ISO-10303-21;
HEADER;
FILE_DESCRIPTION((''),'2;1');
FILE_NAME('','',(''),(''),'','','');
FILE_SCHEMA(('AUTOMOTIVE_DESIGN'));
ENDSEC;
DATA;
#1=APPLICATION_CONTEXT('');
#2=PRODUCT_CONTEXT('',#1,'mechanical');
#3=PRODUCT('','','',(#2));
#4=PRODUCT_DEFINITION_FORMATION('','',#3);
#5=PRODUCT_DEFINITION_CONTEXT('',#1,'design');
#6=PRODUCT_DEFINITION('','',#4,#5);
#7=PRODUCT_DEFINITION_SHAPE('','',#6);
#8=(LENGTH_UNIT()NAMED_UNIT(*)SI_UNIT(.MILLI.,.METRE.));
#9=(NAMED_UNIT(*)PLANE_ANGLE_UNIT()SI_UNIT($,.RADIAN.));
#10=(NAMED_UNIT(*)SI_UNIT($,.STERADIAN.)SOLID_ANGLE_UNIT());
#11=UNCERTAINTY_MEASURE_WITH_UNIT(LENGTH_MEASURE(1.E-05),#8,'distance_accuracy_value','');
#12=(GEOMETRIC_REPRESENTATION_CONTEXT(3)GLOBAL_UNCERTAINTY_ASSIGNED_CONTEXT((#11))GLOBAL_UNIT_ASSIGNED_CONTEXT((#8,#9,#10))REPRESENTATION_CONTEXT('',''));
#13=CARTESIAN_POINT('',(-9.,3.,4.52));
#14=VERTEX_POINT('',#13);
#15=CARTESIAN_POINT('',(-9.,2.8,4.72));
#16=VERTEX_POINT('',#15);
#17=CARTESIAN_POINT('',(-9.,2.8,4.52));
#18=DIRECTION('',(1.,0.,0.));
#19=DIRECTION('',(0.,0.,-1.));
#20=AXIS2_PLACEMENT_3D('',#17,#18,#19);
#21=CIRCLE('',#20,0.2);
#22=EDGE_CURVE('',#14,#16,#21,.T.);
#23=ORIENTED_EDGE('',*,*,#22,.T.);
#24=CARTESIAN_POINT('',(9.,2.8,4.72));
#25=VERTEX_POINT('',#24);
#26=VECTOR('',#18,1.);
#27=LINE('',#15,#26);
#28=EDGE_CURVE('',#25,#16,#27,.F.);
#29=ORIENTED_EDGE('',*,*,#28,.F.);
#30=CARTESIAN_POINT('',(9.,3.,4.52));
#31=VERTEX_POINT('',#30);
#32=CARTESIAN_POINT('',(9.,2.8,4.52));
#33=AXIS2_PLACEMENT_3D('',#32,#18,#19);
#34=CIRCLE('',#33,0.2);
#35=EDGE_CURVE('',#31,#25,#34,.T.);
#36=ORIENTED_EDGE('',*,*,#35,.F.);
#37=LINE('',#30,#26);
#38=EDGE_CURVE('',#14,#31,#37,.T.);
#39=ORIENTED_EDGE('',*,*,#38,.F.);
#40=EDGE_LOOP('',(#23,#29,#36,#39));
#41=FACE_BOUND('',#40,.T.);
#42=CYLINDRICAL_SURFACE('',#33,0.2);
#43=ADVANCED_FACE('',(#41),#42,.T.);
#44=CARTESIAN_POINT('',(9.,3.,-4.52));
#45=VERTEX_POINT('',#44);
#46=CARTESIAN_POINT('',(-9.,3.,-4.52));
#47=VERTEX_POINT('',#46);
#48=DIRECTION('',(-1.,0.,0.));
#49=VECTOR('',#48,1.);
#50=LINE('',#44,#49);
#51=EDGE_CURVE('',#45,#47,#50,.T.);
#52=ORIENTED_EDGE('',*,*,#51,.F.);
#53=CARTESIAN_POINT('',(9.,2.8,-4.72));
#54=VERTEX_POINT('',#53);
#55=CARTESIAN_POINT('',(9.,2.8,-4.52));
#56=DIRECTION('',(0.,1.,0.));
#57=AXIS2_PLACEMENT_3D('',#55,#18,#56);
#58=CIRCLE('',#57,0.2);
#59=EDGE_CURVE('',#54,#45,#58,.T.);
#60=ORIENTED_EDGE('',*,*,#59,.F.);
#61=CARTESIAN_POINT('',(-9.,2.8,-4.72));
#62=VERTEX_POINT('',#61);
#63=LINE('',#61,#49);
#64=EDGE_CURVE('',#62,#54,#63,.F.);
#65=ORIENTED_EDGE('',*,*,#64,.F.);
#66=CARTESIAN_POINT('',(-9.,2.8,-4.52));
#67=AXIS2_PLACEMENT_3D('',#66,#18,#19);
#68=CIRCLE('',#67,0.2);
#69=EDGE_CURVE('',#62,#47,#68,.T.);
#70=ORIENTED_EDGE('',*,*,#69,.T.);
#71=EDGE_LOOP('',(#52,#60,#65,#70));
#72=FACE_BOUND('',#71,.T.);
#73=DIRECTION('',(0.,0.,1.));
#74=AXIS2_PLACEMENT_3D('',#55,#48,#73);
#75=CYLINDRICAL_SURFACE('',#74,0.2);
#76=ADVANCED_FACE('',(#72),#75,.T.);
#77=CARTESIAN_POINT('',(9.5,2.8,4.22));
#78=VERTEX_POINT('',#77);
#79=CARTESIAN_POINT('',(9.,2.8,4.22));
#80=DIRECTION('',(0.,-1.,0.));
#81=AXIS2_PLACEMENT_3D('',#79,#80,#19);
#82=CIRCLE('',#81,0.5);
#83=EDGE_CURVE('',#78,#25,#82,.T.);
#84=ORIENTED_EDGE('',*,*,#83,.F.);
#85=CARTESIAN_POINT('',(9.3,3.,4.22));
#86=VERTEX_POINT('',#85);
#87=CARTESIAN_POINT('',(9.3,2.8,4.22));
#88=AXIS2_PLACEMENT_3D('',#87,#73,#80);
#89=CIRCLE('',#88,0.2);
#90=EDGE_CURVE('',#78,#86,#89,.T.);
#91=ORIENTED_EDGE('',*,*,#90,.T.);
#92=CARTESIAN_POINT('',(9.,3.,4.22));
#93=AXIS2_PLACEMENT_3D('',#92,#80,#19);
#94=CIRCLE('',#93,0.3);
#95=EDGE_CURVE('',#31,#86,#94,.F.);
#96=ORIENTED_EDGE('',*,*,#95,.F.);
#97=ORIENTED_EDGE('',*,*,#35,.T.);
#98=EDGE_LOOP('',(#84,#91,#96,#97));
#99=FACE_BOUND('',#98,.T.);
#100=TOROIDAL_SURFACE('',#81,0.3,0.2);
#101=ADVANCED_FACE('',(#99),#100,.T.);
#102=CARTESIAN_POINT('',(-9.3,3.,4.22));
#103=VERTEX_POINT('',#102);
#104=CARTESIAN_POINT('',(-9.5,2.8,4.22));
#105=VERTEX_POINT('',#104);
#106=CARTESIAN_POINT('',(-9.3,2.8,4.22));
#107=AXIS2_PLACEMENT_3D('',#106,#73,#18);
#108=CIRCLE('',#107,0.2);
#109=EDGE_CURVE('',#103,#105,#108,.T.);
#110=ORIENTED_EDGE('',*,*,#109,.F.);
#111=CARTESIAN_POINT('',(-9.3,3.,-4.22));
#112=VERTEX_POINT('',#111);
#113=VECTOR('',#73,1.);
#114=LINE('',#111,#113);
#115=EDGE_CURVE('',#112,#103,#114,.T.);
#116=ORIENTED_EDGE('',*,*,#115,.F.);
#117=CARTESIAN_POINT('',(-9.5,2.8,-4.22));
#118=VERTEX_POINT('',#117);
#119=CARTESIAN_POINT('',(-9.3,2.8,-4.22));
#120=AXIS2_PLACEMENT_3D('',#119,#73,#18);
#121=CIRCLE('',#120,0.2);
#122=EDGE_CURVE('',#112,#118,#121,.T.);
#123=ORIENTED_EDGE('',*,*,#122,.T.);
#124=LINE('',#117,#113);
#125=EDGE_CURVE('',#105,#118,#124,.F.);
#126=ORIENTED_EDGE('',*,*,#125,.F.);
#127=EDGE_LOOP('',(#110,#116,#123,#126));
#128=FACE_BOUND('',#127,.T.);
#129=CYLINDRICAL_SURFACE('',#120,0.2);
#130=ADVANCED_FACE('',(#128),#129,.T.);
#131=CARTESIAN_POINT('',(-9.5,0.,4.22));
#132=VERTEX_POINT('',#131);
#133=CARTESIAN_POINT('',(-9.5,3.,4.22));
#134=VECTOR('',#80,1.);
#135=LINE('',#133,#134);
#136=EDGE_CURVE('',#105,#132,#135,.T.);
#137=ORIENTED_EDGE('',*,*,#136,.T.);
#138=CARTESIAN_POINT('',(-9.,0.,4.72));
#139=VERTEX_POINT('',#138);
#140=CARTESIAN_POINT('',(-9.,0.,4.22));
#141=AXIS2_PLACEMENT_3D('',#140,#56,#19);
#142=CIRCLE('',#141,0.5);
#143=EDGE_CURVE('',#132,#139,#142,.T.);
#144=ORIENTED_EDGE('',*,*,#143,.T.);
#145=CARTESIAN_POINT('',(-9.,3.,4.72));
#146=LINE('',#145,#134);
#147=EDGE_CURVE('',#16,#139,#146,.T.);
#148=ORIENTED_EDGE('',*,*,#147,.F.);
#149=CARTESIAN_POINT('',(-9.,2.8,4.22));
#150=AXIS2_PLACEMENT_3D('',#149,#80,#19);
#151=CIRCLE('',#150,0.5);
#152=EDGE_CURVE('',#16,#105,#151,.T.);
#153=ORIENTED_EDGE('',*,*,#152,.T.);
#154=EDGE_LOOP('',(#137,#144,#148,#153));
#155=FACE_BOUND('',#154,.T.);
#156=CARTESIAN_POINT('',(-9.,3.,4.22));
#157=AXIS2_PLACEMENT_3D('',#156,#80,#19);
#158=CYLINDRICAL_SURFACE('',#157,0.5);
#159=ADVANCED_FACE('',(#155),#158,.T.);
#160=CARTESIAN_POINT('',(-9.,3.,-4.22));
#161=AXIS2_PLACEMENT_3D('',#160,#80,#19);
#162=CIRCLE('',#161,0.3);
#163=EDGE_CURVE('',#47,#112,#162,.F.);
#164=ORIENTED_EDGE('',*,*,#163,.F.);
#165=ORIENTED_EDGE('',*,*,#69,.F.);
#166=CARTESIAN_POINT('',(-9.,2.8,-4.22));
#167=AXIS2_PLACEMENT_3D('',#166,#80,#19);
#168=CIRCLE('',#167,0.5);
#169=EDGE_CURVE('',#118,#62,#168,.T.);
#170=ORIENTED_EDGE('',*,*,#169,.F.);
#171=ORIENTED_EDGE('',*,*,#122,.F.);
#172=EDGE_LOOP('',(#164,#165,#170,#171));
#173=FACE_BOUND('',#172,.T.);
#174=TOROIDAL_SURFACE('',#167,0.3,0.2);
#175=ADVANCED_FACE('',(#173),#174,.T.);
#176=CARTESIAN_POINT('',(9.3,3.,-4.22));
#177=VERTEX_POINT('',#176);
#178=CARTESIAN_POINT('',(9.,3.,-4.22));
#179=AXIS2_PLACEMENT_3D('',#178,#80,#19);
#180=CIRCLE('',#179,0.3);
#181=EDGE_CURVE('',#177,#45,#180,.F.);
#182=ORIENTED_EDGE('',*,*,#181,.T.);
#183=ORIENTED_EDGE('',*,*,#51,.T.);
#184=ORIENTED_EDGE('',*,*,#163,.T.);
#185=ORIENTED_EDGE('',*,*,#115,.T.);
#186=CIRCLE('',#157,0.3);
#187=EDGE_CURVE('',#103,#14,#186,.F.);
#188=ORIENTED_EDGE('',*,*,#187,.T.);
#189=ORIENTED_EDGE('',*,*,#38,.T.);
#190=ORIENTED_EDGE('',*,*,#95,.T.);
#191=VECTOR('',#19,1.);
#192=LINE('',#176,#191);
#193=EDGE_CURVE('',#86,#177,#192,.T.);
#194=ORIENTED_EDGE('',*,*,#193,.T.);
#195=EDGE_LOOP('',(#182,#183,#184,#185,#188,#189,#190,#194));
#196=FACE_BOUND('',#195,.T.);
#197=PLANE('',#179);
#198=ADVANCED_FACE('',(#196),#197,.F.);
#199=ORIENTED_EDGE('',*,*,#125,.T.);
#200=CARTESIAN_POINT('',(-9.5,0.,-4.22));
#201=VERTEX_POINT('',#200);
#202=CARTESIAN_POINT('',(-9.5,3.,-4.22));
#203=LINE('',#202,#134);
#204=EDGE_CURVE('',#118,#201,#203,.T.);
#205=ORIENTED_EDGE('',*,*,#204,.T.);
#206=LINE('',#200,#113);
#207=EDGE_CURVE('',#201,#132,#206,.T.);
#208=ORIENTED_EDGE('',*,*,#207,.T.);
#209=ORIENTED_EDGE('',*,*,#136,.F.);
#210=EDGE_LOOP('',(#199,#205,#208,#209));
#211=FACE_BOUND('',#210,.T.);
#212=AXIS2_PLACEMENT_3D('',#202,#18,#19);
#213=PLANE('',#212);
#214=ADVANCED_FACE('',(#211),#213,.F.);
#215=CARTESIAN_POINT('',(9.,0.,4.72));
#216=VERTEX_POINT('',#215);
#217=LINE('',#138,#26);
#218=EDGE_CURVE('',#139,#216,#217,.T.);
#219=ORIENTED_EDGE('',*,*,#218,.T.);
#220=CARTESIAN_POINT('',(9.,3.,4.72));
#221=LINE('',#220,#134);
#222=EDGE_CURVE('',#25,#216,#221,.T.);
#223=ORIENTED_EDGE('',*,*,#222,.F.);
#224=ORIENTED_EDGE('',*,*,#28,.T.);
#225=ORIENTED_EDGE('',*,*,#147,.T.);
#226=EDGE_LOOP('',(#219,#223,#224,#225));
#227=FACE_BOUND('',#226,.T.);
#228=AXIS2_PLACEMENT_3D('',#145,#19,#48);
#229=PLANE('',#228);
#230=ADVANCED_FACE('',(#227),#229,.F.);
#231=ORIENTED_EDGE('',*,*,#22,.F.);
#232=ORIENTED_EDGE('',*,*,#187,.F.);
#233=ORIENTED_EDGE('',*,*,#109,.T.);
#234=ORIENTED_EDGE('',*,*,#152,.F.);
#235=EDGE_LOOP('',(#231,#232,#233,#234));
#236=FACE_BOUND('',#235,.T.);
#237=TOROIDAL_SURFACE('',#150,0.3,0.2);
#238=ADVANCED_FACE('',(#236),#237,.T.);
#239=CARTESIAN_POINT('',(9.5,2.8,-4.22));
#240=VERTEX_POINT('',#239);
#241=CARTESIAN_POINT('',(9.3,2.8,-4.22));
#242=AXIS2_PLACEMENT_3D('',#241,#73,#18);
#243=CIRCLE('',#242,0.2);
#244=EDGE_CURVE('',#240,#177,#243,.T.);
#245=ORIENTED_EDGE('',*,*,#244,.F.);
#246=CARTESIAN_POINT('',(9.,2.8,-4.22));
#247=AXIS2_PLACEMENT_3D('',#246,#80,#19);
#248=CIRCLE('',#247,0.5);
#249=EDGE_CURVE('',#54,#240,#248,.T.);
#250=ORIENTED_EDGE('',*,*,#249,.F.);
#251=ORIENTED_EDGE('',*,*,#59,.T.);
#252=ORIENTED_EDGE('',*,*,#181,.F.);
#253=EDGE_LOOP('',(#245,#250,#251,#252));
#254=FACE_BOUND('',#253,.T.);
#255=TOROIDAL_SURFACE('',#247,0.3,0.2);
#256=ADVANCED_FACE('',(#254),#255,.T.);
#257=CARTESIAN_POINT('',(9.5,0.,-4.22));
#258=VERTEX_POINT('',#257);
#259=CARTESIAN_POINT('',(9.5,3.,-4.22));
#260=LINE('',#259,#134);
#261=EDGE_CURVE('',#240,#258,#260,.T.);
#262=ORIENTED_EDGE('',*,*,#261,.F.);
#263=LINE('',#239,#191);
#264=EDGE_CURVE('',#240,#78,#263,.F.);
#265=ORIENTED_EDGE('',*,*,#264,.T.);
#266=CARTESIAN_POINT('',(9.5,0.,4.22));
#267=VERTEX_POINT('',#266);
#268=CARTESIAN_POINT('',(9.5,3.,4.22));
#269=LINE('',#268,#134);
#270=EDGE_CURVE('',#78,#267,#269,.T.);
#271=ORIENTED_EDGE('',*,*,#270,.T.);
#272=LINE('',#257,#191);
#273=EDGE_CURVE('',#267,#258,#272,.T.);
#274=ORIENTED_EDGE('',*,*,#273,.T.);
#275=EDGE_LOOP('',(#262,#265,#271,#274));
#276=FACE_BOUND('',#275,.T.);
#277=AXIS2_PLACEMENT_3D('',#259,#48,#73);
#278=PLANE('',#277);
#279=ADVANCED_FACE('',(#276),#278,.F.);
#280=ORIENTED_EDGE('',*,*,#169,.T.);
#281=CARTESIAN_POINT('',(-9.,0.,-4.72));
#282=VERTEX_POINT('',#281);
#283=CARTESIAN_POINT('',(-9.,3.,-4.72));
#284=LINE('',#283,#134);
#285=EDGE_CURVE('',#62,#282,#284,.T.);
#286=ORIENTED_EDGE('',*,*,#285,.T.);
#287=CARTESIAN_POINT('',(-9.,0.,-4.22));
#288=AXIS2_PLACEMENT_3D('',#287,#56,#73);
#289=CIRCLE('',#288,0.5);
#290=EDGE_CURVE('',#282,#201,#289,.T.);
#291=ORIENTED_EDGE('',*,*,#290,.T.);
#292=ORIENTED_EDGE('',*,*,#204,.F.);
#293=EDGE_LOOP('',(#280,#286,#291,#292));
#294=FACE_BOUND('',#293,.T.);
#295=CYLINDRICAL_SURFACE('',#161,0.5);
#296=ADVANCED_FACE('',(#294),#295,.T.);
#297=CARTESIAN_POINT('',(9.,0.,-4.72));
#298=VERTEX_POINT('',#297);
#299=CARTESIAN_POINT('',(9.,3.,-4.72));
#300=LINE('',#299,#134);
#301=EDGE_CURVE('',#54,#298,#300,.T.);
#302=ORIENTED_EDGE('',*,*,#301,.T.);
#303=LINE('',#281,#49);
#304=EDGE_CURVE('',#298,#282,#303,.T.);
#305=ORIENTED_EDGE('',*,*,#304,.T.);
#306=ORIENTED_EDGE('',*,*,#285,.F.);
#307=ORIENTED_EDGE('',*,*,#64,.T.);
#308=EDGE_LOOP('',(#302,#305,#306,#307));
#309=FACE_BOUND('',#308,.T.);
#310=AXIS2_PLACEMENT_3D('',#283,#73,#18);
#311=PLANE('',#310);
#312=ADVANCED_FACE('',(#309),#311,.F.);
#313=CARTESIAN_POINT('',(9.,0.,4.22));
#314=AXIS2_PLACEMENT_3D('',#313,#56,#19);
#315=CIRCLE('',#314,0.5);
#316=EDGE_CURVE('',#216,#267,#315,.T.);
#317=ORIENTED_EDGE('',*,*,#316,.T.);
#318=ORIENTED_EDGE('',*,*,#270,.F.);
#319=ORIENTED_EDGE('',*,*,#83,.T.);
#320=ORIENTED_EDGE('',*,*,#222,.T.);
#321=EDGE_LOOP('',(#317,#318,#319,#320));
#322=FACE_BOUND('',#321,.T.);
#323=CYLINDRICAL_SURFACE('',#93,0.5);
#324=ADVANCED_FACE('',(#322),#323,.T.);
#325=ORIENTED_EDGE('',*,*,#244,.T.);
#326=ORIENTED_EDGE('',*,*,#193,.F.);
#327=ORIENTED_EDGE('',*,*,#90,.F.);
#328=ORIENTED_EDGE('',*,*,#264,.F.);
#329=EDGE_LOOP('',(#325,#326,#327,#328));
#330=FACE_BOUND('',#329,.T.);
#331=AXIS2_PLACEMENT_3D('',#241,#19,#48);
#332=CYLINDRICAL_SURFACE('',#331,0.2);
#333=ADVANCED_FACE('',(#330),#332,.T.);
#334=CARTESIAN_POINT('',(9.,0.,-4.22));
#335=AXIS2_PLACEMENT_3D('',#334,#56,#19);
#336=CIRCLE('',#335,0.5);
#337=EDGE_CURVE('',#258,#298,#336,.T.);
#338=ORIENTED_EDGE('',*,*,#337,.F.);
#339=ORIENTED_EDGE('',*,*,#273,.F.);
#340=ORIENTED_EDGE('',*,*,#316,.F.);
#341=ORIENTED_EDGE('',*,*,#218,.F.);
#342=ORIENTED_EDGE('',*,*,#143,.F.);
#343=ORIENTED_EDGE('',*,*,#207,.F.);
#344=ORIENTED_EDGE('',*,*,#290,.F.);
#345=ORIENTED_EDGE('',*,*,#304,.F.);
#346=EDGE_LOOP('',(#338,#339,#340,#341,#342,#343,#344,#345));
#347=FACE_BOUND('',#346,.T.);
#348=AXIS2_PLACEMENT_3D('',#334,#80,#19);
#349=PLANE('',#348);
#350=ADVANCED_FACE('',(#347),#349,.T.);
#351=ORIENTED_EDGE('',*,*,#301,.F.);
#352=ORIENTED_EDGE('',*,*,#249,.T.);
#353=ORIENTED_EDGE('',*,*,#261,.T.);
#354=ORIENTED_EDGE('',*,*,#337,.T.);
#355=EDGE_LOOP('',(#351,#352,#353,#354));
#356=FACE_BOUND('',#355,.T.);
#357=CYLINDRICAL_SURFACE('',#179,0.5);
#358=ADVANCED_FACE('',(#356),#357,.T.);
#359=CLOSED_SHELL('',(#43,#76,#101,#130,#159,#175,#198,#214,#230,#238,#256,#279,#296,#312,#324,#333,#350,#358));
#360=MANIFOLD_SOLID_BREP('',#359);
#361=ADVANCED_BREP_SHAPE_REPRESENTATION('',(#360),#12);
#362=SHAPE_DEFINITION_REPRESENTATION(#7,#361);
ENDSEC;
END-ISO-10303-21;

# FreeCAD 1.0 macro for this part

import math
import FreeCAD as App
import Part
import Sketcher
from FreeCAD import Vector


def edges_at(feature, points):
    """Names of the edges that pass closest to the given points."""
    edges = feature.Shape.Edges
    near = lambda p: min(range(len(edges)), key=lambda i: edges[i].distToShape(Part.Vertex(*p))[0])
    return sorted({f"Edge{near(p) + 1}" for p in points})

doc = App.newDocument("Part")
body = doc.addObject("PartDesign::Body", "Body")

# Sketch on XZ plane
sketch1 = body.newObject("Sketcher::SketchObject", "Sketch")
sketch1.AttachmentSupport = (doc.getObject("XZ_Plane"), [""])
sketch1.MapMode = "FlatFace"
sketch1.addGeometry(Part.LineSegment(Vector(9, -4.72, 0), Vector(-9, -4.72, 0)), False)
sketch1.addGeometry(Part.ArcOfCircle(Part.Circle(Vector(-9, -4.22, 0), Vector(0, 0, 1), 0.5), math.radians(180), math.radians(270)), False)
sketch1.addGeometry(Part.LineSegment(Vector(-9.5, -4.22, 0), Vector(-9.5, 4.22, 0)), False)
sketch1.addGeometry(Part.ArcOfCircle(Part.Circle(Vector(-9, 4.22, 0), Vector(0, 0, 1), 0.5), math.radians(90), math.radians(180)), False)
sketch1.addGeometry(Part.LineSegment(Vector(-9, 4.72, 0), Vector(9, 4.72, 0)), False)
sketch1.addGeometry(Part.ArcOfCircle(Part.Circle(Vector(9, 4.22, 0), Vector(0, 0, 1), 0.5), math.radians(0), math.radians(90)), False)
sketch1.addGeometry(Part.LineSegment(Vector(9.5, 4.22, 0), Vector(9.5, -4.22, 0)), False)
sketch1.addGeometry(Part.ArcOfCircle(Part.Circle(Vector(9, -4.22, 0), Vector(0, 0, 1), 0.5), math.radians(-90), math.radians(0)), False)
sketch1.addConstraint(Sketcher.Constraint("Tangent", 0, 2, 1, 2))
sketch1.addConstraint(Sketcher.Constraint("Tangent", 1, 1, 2, 1))
sketch1.addConstraint(Sketcher.Constraint("Tangent", 2, 2, 3, 2))
sketch1.addConstraint(Sketcher.Constraint("Tangent", 3, 1, 4, 1))
sketch1.addConstraint(Sketcher.Constraint("Tangent", 4, 2, 5, 2))
sketch1.addConstraint(Sketcher.Constraint("Tangent", 5, 1, 6, 1))
sketch1.addConstraint(Sketcher.Constraint("Tangent", 6, 2, 7, 2))
sketch1.addConstraint(Sketcher.Constraint("Tangent", 7, 1, 0, 1))
sketch1.addConstraint(Sketcher.Constraint("Horizontal", 0))
sketch1.addConstraint(Sketcher.Constraint("Vertical", 2))
sketch1.addConstraint(Sketcher.Constraint("Horizontal", 4))
sketch1.addConstraint(Sketcher.Constraint("Vertical", 6))
sketch1.addConstraint(Sketcher.Constraint("Equal", 1, 3))
sketch1.addConstraint(Sketcher.Constraint("Equal", 3, 5))
sketch1.addConstraint(Sketcher.Constraint("Equal", 5, 7))
sketch1.addConstraint(Sketcher.Constraint("Symmetric", 1, 3, 5, 3, -1, 1))
sketch1.addConstraint(Sketcher.Constraint("Radius", 1, 0.5))
sketch1.addConstraint(Sketcher.Constraint("DistanceX", 0, 2, 0, 1, 18.0))
sketch1.addConstraint(Sketcher.Constraint("DistanceY", 2, 1, 2, 2, 8.44))
pad1 = body.newObject("PartDesign::Pad", "Pad")
pad1.Profile = sketch1
pad1.Length = 3
pad1.Reversed = True
doc.recompute()

fillet = body.newObject("PartDesign::Fillet", "Fillet")
fillet.Base = (pad1, edges_at(pad1, [
    (-9.354, 3, -4.574),
    (-9.5, 3, 0),
    (-9.354, 3, 4.574),
    (0, 3, 4.72),
    (9.354, 3, 4.574),
    (9.5, 3, 0),
    (9.354, 3, -4.574),
    (0, 3, -4.72),
]))
fillet.Radius = 0.2

doc.recompute()
